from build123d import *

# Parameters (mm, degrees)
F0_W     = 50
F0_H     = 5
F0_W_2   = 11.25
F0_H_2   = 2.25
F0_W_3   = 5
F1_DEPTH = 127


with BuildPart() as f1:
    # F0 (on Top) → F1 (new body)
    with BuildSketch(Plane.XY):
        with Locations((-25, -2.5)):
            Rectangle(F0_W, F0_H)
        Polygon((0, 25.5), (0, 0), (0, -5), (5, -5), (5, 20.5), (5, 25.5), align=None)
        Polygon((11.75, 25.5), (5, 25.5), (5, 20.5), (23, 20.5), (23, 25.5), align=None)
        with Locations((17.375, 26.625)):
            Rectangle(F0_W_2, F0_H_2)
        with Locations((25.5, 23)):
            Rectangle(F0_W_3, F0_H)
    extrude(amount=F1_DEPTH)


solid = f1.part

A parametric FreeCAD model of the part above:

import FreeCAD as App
import Part
import Sketcher
from FreeCAD import Vector
Q = App.Units.Quantity

doc = App.newDocument("Part")
params = doc.addObject("Spreadsheet::Sheet", "Params")
for row, (alias, value) in enumerate([
    ("sketch1_width", "55 mm"),
    ("sketch1_width2", "23 mm"),
    ("sketch1_width3", "5 mm"),
    ("sketch1_width4", "50 mm"),
    ("sketch1_height", "25.5 mm"),
    ("pad1_length", "127 mm"),
], start=1):
    params.set(f"A{row}", alias)
    params.set(f"B{row}", "=" + value)
    params.setAlias(f"B{row}", alias)

body = doc.addObject("PartDesign::Body", "Body")

# Sketch on XY plane
sketch1 = doc.addObject("Sketcher::SketchObject", "Sketch")
body.addObject(sketch1)
sketch1.AttachmentSupport = (doc.XY_Plane, [""])
sketch1.MapMode = "FlatFace"
sketch1.addGeometry(Part.LineSegment(Vector(-50, 0, 0), Vector(-50, -5, 0)), False)
sketch1.addGeometry(Part.LineSegment(Vector(-50, -5, 0), Vector(5, -5, 0)), False)
sketch1.addGeometry(Part.LineSegment(Vector(5, -5, 0), Vector(5, 20.5, 0)), False)
sketch1.addGeometry(Part.LineSegment(Vector(5, 20.5, 0), Vector(28, 20.5, 0)), False)
sketch1.addGeometry(Part.LineSegment(Vector(28, 20.5, 0), Vector(28, 25.5, 0)), False)
sketch1.addGeometry(Part.LineSegment(Vector(28, 25.5, 0), Vector(23, 25.5, 0)), False)
sketch1.addGeometry(Part.LineSegment(Vector(23, 25.5, 0), Vector(23, 27.75, 0)), False)
sketch1.addGeometry(Part.LineSegment(Vector(23, 27.75, 0), Vector(11.75, 27.75, 0)), False)
sketch1.addGeometry(Part.LineSegment(Vector(11.75, 27.75, 0), Vector(11.75, 25.5, 0)), False)
sketch1.addGeometry(Part.LineSegment(Vector(11.75, 25.5, 0), Vector(0, 25.5, 0)), False)
sketch1.addGeometry(Part.LineSegment(Vector(0, 25.5, 0), Vector(0, 0, 0)), False)
sketch1.addGeometry(Part.LineSegment(Vector(0, 0, 0), Vector(-50, 0, 0)), False)
sketch1.addConstraint(Sketcher.Constraint("Coincident", 0, 2, 1, 1))
sketch1.addConstraint(Sketcher.Constraint("Coincident", 1, 2, 2, 1))
sketch1.addConstraint(Sketcher.Constraint("Coincident", 2, 2, 3, 1))
sketch1.addConstraint(Sketcher.Constraint("Coincident", 3, 2, 4, 1))
sketch1.addConstraint(Sketcher.Constraint("Coincident", 4, 2, 5, 1))
sketch1.addConstraint(Sketcher.Constraint("Coincident", 5, 2, 6, 1))
sketch1.addConstraint(Sketcher.Constraint("Coincident", 6, 2, 7, 1))
sketch1.addConstraint(Sketcher.Constraint("Coincident", 7, 2, 8, 1))
sketch1.addConstraint(Sketcher.Constraint("Coincident", 8, 2, 9, 1))
sketch1.addConstraint(Sketcher.Constraint("Coincident", 9, 2, 10, 1))
sketch1.addConstraint(Sketcher.Constraint("Coincident", 10, 2, 11, 1))
sketch1.addConstraint(Sketcher.Constraint("Coincident", 11, 2, 0, 1))
sketch1.addConstraint(Sketcher.Constraint("Vertical", 0))
sketch1.addConstraint(Sketcher.Constraint("Horizontal", 1))
sketch1.addConstraint(Sketcher.Constraint("Vertical", 2))
sketch1.addConstraint(Sketcher.Constraint("Horizontal", 3))
sketch1.addConstraint(Sketcher.Constraint("Vertical", 4))
sketch1.addConstraint(Sketcher.Constraint("Horizontal", 5))
sketch1.addConstraint(Sketcher.Constraint("Vertical", 6))
sketch1.addConstraint(Sketcher.Constraint("Horizontal", 7))
sketch1.addConstraint(Sketcher.Constraint("Vertical", 8))
sketch1.addConstraint(Sketcher.Constraint("Horizontal", 9))
sketch1.addConstraint(Sketcher.Constraint("Vertical", 10))
sketch1.addConstraint(Sketcher.Constraint("Horizontal", 11))
sketch1.addConstraint(Sketcher.Constraint("Coincident", 10, 2, -1, 1))
sketch1.addConstraint(Sketcher.Constraint("Horizontal", 5, 2, 8, 2))
sketch1.addConstraint(Sketcher.Constraint("Equal", 5, 0))
sketch1.addConstraint(Sketcher.Constraint("Equal", 0, 4))
sketch1.addConstraint(Sketcher.Constraint("DistanceX", 1, 1, 1, 2, Q("55 mm")))
sketch1.addConstraint(Sketcher.Constraint("DistanceX", 3, 1, 3, 2, Q("23 mm")))
sketch1.addConstraint(Sketcher.Constraint("DistanceX", 5, 2, 5, 1, Q("5 mm")))
sketch1.addConstraint(Sketcher.Constraint("DistanceX", 11, 2, 11, 1, Q("50 mm")))
sketch1.addConstraint(Sketcher.Constraint("DistanceY", 2, 1, 2, 2, Q("25.5 mm")))
sketch1.addConstraint(Sketcher.Constraint("DistanceX", 7, 2, 7, 1, Q("11.25 mm")))
sketch1.addConstraint(Sketcher.Constraint("DistanceY", 6, 1, 6, 2, Q("2.25 mm")))
sketch1.setExpression("Constraints[28]", "Params.sketch1_width")
sketch1.setExpression("Constraints[29]", "Params.sketch1_width2")
sketch1.setExpression("Constraints[30]", "Params.sketch1_width3")
sketch1.setExpression("Constraints[31]", "Params.sketch1_width4")
sketch1.setExpression("Constraints[32]", "Params.sketch1_height")
pad1 = doc.addObject("PartDesign::Pad", "Pad")
body.addObject(pad1)
pad1.Profile = sketch1
pad1.setExpression("Length", "Params.pad1_length")

doc.recompute()
